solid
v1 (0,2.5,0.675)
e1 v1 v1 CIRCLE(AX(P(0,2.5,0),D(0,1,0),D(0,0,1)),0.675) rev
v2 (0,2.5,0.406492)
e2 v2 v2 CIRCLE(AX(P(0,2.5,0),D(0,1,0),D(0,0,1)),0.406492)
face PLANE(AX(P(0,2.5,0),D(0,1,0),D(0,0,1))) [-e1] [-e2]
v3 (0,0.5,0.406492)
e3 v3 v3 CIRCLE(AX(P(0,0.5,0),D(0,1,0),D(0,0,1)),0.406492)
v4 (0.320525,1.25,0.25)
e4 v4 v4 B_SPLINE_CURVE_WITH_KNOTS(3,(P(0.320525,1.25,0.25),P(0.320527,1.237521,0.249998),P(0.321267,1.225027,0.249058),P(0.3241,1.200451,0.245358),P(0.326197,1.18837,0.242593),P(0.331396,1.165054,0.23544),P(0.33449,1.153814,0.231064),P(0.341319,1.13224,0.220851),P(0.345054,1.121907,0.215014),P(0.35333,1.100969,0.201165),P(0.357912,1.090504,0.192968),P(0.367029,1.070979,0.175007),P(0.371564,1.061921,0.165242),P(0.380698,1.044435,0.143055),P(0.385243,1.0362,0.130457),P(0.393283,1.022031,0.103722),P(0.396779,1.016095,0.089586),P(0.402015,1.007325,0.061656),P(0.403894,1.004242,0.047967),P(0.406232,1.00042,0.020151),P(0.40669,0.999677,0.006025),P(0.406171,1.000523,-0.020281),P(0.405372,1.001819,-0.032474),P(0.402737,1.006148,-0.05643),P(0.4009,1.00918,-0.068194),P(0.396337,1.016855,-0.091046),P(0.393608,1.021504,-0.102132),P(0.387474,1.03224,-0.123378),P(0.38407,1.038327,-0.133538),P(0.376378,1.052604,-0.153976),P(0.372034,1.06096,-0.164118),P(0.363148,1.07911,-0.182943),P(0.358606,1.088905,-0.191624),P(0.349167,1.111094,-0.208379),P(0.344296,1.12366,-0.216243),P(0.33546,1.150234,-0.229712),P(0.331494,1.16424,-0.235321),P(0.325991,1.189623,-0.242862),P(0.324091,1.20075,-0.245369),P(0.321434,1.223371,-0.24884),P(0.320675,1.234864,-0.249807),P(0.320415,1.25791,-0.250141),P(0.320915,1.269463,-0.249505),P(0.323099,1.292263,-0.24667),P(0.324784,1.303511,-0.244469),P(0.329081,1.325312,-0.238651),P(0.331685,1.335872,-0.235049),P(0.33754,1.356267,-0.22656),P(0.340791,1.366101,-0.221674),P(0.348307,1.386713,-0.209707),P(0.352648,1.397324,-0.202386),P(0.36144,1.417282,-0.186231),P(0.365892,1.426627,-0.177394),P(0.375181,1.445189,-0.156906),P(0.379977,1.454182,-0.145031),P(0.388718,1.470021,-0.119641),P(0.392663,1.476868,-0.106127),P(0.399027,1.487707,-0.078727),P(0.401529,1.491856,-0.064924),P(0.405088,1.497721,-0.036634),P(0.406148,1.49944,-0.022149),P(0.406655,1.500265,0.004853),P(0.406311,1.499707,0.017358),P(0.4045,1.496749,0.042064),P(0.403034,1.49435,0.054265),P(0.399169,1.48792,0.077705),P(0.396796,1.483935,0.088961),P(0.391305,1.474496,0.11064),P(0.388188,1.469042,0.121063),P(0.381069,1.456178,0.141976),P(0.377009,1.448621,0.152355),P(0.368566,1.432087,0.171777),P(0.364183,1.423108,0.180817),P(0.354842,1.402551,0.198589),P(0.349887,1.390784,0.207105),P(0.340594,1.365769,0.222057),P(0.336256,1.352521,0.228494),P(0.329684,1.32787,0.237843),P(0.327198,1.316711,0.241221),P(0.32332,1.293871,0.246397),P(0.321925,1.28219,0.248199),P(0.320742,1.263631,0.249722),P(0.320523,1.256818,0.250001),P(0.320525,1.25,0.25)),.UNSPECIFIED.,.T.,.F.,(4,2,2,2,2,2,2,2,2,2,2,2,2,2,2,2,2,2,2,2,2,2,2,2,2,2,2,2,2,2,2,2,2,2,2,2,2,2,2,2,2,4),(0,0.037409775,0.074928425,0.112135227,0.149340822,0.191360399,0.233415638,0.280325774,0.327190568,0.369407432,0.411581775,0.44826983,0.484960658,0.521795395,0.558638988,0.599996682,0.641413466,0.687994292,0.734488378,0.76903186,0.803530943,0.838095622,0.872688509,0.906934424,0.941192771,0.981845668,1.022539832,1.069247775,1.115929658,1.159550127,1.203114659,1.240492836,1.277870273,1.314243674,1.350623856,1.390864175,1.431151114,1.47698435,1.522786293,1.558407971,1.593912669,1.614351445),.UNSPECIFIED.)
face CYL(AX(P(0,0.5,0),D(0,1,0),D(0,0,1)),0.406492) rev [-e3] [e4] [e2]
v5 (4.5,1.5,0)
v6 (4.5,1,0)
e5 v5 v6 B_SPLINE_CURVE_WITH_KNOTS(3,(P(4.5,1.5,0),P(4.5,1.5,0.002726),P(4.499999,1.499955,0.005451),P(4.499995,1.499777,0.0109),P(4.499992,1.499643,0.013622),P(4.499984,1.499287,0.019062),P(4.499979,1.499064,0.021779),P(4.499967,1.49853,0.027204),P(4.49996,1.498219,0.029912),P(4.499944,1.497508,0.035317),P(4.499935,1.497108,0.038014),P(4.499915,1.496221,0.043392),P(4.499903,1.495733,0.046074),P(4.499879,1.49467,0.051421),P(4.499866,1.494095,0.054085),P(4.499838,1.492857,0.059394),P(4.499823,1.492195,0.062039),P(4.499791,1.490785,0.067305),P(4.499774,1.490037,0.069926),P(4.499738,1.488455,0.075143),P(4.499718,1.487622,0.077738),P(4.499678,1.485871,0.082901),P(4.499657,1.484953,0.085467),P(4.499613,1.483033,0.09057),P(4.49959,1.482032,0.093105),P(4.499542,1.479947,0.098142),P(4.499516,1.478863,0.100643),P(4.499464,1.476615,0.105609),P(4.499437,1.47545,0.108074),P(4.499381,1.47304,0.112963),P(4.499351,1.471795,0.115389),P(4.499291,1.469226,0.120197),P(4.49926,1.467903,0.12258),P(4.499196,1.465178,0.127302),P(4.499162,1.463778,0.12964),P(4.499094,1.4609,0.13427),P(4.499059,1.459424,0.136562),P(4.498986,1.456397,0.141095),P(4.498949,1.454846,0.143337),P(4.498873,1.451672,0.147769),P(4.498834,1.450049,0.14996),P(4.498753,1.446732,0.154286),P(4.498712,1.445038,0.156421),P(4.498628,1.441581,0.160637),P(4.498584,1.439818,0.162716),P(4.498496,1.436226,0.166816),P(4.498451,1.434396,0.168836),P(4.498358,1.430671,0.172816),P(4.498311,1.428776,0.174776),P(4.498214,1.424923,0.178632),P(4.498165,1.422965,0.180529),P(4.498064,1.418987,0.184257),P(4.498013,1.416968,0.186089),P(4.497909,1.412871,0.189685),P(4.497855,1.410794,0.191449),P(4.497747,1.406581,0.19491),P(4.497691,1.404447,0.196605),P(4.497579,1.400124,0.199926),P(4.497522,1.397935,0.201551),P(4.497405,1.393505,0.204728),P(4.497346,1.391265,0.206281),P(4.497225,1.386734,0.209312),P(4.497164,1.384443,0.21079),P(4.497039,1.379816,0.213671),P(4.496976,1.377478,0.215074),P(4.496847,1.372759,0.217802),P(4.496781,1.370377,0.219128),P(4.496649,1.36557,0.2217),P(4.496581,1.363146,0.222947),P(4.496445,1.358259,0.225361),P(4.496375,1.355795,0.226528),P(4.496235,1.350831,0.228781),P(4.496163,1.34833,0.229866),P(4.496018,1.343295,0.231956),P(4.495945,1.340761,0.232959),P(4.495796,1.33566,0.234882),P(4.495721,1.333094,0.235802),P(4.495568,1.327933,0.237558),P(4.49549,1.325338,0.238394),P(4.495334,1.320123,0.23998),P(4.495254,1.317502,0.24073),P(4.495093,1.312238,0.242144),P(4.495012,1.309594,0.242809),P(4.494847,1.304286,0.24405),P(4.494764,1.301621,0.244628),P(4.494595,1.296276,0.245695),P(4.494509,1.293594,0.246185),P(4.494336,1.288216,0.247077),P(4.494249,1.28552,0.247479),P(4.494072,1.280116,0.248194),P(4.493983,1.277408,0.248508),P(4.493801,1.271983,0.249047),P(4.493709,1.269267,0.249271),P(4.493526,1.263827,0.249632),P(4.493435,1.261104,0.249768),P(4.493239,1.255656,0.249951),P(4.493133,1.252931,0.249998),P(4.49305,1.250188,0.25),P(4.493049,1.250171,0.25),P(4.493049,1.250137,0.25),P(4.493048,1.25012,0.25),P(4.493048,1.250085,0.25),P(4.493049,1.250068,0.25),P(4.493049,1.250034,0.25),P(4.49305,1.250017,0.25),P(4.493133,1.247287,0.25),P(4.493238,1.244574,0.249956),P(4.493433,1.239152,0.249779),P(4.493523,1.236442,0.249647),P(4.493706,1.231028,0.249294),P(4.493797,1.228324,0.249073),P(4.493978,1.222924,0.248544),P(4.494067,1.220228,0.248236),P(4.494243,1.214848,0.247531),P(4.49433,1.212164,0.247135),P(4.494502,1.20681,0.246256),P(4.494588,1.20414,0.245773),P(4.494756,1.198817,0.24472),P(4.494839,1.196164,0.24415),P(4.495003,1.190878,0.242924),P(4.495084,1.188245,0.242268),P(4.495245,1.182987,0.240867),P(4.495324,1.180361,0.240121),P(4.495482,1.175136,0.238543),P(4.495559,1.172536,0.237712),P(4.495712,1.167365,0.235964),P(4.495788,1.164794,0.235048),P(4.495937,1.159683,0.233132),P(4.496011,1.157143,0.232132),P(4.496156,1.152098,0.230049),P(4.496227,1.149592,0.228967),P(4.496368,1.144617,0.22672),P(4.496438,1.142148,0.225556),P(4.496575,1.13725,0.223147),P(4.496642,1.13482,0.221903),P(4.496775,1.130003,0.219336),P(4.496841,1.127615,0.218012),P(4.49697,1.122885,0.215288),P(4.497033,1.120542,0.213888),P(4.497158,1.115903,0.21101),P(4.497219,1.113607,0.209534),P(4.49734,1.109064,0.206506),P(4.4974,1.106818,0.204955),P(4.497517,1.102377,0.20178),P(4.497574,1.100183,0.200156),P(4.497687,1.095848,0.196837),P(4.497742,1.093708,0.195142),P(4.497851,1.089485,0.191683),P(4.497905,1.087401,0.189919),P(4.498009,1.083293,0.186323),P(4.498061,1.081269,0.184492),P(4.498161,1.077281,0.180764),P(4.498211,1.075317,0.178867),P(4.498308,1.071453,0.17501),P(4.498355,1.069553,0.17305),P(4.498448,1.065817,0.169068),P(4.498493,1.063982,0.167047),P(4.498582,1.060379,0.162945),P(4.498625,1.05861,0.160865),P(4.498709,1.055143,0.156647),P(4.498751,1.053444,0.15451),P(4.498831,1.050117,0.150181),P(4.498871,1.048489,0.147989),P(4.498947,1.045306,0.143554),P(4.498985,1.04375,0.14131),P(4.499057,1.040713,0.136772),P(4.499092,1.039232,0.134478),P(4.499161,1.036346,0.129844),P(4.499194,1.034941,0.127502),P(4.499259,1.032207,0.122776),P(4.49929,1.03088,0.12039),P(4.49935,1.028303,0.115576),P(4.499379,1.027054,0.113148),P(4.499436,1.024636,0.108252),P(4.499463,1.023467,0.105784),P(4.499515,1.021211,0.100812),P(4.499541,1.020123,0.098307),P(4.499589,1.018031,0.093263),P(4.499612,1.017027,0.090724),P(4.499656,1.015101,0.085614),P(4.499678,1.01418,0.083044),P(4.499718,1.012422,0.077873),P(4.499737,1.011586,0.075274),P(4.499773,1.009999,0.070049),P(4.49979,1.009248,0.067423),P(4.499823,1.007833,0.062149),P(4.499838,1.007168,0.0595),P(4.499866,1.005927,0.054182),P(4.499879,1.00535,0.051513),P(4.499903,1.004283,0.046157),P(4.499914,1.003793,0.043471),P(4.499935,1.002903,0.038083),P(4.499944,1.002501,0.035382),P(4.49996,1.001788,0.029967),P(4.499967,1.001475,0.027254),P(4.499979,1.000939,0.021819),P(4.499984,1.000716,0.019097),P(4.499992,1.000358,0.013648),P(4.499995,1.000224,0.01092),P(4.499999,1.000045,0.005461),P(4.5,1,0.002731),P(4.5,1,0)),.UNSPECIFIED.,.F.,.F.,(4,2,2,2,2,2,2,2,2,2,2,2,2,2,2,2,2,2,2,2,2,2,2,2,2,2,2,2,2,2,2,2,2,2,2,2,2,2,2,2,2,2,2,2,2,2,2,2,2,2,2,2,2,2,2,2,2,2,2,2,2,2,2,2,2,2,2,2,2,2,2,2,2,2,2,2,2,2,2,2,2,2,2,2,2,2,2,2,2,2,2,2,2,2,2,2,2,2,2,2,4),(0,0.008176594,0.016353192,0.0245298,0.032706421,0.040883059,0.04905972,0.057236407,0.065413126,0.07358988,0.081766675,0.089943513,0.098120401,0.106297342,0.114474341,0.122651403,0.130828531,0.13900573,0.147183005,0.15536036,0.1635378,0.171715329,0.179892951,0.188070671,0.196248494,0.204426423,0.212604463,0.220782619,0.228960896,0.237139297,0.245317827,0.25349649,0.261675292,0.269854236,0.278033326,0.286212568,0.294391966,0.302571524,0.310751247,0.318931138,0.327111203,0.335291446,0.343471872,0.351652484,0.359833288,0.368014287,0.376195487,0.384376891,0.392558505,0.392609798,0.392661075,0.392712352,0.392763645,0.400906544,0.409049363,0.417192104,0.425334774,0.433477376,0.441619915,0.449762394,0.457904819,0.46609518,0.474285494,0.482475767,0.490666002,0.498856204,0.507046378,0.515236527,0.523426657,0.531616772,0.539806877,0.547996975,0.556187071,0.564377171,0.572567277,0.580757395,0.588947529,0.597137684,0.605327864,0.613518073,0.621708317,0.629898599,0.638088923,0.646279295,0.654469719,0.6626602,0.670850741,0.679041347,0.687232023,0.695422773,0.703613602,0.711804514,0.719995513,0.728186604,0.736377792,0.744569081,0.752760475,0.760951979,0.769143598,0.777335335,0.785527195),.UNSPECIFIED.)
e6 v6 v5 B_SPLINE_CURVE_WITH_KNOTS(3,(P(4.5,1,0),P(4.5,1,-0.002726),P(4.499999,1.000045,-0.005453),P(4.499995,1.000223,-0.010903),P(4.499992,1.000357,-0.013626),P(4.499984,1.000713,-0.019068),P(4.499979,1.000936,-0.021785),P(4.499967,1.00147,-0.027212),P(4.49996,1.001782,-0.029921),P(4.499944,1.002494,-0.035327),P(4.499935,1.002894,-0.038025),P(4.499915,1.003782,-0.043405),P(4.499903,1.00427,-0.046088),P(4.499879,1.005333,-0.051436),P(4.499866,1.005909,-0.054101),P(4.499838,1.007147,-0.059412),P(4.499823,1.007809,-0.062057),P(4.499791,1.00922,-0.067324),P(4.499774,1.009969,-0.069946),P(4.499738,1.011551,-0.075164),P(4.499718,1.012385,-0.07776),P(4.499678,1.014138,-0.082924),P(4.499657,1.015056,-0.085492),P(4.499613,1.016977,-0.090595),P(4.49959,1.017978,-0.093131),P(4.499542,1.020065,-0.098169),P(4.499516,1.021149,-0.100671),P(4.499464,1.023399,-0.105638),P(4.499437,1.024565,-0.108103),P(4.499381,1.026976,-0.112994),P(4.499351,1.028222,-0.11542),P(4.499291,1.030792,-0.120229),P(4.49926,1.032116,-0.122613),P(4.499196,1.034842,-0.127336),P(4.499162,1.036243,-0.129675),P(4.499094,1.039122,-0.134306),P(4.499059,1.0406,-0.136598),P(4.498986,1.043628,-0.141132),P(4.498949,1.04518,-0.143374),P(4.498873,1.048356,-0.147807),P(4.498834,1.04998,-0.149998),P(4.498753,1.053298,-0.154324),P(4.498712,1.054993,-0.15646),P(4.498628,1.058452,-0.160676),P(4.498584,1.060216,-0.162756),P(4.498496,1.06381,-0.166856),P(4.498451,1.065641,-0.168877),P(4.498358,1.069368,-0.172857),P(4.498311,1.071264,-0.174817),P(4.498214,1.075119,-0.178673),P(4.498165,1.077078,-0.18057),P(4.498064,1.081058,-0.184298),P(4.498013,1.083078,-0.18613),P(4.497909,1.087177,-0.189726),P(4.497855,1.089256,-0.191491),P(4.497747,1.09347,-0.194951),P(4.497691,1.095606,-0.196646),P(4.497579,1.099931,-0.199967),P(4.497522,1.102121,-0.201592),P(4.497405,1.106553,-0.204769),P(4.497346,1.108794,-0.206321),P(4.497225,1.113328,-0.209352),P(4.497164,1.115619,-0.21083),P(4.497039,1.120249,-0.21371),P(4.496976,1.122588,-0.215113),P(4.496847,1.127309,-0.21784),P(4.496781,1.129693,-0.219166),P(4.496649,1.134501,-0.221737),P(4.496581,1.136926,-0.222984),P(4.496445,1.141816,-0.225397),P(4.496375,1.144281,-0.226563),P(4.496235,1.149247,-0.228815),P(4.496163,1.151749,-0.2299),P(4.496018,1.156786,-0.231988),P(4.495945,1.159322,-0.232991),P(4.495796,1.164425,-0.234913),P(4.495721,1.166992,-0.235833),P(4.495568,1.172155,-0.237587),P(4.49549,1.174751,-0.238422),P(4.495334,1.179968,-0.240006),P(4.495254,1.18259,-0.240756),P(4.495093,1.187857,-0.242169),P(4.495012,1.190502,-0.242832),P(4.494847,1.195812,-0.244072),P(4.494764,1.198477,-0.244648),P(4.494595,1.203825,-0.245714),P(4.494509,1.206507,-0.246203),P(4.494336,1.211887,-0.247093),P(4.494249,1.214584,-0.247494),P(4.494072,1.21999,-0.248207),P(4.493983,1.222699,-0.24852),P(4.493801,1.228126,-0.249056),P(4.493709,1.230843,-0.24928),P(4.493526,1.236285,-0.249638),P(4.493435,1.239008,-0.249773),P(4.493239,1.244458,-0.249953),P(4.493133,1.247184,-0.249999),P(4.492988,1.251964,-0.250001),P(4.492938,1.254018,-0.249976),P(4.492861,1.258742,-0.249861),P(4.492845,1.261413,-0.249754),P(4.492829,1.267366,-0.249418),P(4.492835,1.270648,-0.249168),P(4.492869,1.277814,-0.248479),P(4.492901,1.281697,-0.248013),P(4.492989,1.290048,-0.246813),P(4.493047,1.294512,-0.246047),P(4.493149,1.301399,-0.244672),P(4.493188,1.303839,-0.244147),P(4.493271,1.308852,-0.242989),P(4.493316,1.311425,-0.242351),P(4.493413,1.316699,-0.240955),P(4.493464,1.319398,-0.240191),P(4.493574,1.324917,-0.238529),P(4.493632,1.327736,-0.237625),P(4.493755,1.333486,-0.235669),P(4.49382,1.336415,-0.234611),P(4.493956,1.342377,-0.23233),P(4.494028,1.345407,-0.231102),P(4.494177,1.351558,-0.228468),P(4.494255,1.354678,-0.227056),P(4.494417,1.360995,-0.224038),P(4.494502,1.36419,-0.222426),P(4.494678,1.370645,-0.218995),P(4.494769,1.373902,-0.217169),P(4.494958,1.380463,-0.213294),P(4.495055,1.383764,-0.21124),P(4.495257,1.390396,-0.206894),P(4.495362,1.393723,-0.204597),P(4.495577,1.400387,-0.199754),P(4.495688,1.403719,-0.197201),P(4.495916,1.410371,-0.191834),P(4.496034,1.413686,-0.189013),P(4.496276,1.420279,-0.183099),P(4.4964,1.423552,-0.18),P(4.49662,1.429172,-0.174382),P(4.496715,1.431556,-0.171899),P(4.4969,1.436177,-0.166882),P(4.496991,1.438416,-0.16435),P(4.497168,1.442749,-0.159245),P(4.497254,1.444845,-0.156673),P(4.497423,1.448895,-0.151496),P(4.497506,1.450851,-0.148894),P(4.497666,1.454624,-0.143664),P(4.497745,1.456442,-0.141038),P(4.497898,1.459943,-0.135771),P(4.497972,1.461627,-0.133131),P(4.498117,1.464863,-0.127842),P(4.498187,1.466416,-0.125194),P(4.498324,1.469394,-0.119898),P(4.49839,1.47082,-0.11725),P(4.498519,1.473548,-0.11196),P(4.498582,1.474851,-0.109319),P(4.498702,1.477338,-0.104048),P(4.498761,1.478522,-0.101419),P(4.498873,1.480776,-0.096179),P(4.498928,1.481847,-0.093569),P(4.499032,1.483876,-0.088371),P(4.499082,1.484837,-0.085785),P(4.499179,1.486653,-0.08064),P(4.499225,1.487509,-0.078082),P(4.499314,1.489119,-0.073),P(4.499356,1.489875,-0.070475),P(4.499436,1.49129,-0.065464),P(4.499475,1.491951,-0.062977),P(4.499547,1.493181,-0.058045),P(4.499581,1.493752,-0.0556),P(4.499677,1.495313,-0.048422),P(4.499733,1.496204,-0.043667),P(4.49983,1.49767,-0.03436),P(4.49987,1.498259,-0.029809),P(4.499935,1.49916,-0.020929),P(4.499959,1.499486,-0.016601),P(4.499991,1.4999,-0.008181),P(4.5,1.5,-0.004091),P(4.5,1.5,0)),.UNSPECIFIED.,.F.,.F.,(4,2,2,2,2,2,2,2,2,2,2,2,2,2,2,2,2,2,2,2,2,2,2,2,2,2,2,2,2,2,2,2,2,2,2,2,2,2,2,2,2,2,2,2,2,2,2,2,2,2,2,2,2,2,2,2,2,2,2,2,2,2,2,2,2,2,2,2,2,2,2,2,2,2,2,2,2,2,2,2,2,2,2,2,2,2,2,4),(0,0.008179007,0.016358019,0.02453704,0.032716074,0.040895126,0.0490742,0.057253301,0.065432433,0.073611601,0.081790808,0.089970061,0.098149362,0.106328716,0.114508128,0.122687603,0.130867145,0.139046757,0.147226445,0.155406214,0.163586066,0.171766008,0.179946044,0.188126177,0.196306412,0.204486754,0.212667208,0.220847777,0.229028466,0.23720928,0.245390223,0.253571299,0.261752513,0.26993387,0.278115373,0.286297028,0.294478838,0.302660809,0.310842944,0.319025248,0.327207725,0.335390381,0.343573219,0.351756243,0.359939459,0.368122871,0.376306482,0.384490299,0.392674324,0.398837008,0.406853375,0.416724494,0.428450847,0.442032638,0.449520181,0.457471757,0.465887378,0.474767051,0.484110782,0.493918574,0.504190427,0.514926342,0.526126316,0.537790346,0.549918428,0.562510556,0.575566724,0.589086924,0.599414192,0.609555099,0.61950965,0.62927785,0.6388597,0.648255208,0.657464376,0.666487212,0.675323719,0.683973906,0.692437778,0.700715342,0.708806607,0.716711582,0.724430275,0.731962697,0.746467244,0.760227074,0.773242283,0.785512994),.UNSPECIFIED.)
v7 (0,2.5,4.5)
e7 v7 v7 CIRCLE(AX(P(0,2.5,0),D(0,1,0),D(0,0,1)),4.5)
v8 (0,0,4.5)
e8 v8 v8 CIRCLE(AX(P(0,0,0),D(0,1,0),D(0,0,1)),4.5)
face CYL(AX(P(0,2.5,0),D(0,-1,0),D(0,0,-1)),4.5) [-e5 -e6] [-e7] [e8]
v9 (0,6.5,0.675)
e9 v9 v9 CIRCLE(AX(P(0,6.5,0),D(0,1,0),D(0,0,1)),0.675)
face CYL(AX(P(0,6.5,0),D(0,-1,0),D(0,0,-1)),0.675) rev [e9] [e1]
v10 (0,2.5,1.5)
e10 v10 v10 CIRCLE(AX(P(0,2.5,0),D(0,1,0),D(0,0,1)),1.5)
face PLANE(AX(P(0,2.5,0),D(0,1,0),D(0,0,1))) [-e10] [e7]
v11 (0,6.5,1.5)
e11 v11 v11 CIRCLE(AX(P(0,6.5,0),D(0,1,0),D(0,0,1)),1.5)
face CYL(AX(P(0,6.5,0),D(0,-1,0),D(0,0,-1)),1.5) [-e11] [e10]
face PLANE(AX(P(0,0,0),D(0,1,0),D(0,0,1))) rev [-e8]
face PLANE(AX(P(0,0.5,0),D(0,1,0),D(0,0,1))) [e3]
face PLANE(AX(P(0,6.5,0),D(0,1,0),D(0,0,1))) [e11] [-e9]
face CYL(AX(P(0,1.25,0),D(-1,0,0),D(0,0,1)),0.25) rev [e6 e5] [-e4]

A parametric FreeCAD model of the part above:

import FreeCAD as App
import Part
import Sketcher
from FreeCAD import Vector
Q = App.Units.Quantity

doc = App.newDocument("Part")
body = doc.addObject("PartDesign::Body", "Body")

sketch1 = body.newObject("Sketcher::SketchObject", "Sketch")
sketch1.AttachmentSupport = (doc.getObject("XZ_Plane"), [""])
sketch1.MapMode = "FlatFace"
sketch1.addGeometry(Part.Circle(Vector(0, 0, 0), Vector(0, 0, 1), 4.5), False)
sketch1.addConstraint([
    Sketcher.Constraint("Coincident", 0, 3, -1, 1),
    Sketcher.Constraint("Diameter", 0, Q("9 mm")),
])
pad1 = body.newObject("PartDesign::Pad", "Pad")
pad1.Profile = sketch1
pad1.Length = 2.5
pad1.Reversed = True

sketch2 = body.newObject("Sketcher::SketchObject", "Sketch001")
sketch2.AttachmentSupport = (doc.getObject("XZ_Plane"), [""])
sketch2.MapMode = "FlatFace"
sketch2.AttachmentOffset = App.Placement(Vector(0, 0, -2.5), App.Rotation())
sketch2.addGeometry([
    Part.Circle(Vector(0, 0, 0), Vector(0, 0, 1), 1.5),
    Part.Circle(Vector(0, 0, 0), Vector(0, 0, 1), 0.7),
], False)
sketch2.addConstraint([
    Sketcher.Constraint("Coincident", 0, 3, -1, 1),
    Sketcher.Constraint("Coincident", 1, 3, -1, 1),
    Sketcher.Constraint("Diameter", 0, Q("3 mm")),
    Sketcher.Constraint("Diameter", 1, Q("1.35 mm")),
])
pad2 = body.newObject("PartDesign::Pad", "Pad001")
pad2.Profile = sketch2
pad2.Length = 4
pad2.Reversed = True

sketch3 = body.newObject("Sketcher::SketchObject", "Sketch002")
sketch3.AttachmentSupport = (doc.getObject("XY_Plane"), [""])
sketch3.MapMode = "FlatFace"
sketch3.addGeometry([
    Part.LineSegment(Vector(0, 1.5, 0), Vector(0, 1.25, 0)),
    Part.LineSegment(Vector(0, 1.25, 0), Vector(4.5, 1.25, 0)),
    Part.LineSegment(Vector(4.5, 1.25, 0), Vector(4.5, 1.5, 0)),
    Part.LineSegment(Vector(4.5, 1.5, 0), Vector(0, 1.5, 0)),
], False)
sketch3.addGeometry(Part.LineSegment(Vector(0, 1.25, 0), Vector(4.5, 1.25, 0)), True)
sketch3.addConstraint([
    Sketcher.Constraint("Coincident", 0, 2, 1, 1),
    Sketcher.Constraint("Coincident", 1, 2, 2, 1),
    Sketcher.Constraint("Coincident", 2, 2, 3, 1),
    Sketcher.Constraint("Coincident", 3, 2, 0, 1),
    Sketcher.Constraint("Vertical", 0),
    Sketcher.Constraint("Horizontal", 1),
    Sketcher.Constraint("Vertical", 2),
    Sketcher.Constraint("Horizontal", 3),
    Sketcher.Constraint("Horizontal", 4),
    Sketcher.Constraint("Coincident", 4, 1, 0, 2),
    Sketcher.Constraint("PointOnObject", 0, 2, -2),
    Sketcher.Constraint("Vertical", 2, 2, 4, 2),
    Sketcher.Constraint("DistanceX", 1, 1, 1, 2, Q("4.5 mm")),
    Sketcher.Constraint("DistanceY", 0, 2, 0, 1, Q("0.25 mm")),
    Sketcher.Constraint("DistanceY", -1, 1, 2, 2, Q("1.5 mm")),
])
groove = body.newObject("PartDesign::Groove", "Groove")
groove.Profile = sketch3
groove.ReferenceAxis = (sketch3, ["Axis0"])
groove.Angle = 360

sketch4 = body.newObject("Sketcher::SketchObject", "Sketch003")
sketch4.AttachmentSupport = (doc.getObject("XZ_Plane"), [""])
sketch4.MapMode = "FlatFace"
sketch4.AttachmentOffset = App.Placement(Vector(0, 0, -2.5), App.Rotation())
sketch4.addGeometry(Part.Circle(Vector(0, 0, 0), Vector(0, 0, 1), 0.41), False)
sketch4.addConstraint([
    Sketcher.Constraint("Coincident", 0, 3, -1, 1),
    Sketcher.Constraint("Diameter", 0, Q("0.812985 mm")),
])
pocket1 = body.newObject("PartDesign::Pocket", "Pocket")
pocket1.Profile = sketch4
pocket1.Length = 2
pocket1.Reversed = True

doc.recompute()
